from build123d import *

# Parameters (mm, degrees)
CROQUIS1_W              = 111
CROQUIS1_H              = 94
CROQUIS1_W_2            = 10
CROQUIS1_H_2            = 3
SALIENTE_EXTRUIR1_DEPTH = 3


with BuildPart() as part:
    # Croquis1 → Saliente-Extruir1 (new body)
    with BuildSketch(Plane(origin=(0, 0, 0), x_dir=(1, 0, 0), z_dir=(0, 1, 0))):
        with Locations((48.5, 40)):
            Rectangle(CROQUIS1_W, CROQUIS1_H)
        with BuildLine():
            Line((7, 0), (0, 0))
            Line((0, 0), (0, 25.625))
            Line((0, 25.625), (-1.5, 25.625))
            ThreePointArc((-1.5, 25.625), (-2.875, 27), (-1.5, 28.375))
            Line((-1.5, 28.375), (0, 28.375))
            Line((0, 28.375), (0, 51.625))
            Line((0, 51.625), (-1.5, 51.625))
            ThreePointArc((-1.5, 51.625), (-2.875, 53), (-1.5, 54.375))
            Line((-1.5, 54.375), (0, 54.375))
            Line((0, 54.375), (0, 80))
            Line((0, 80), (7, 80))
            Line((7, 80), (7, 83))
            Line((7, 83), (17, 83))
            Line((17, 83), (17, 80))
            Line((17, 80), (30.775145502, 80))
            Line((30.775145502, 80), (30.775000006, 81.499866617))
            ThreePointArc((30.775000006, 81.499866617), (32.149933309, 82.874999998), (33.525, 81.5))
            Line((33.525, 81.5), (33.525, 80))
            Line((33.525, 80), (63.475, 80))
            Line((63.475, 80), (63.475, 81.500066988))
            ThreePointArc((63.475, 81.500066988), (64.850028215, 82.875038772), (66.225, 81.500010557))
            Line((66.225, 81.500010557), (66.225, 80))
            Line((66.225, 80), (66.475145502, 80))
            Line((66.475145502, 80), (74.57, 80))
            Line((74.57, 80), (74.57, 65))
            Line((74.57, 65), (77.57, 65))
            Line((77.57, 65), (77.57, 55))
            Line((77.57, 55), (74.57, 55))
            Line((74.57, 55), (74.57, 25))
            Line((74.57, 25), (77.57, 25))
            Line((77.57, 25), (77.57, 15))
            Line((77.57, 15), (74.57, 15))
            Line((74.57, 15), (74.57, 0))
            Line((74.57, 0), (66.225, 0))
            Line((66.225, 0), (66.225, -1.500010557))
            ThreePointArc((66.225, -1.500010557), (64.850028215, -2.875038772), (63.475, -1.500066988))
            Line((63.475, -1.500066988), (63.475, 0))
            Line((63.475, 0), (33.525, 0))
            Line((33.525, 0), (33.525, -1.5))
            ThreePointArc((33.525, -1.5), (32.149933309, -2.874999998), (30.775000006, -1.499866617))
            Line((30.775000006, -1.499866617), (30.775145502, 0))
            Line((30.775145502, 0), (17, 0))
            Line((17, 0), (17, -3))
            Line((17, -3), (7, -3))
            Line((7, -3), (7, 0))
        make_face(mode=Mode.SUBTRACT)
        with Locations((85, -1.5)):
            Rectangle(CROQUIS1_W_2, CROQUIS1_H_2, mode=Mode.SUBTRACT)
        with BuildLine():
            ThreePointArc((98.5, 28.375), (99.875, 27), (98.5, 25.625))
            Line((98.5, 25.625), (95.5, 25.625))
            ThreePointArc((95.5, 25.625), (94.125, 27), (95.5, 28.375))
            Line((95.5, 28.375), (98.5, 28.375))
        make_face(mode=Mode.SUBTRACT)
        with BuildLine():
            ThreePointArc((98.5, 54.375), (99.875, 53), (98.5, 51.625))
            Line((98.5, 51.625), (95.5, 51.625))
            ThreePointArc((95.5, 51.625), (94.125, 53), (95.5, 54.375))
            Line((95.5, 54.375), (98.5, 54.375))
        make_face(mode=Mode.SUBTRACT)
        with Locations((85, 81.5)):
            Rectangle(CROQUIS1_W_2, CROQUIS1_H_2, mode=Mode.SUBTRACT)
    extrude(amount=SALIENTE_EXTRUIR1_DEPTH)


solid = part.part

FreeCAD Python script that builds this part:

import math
import FreeCAD as App
import Part
import Sketcher

V = App.Vector

doc = App.newDocument("Part")
body = doc.addObject("PartDesign::Body", "Body")

sketch1 = body.newObject("Sketcher::SketchObject", "Sketch")
sketch1.AttachmentSupport = (doc.getObject("XZ_Plane"), [""])
sketch1.MapMode = "FlatFace"
sketch1.addGeometry(Part.LineSegment(V(-7, -87, 0), V(-7, 7, 0)), False)
sketch1.addGeometry(Part.LineSegment(V(-7, 7, 0), V(104, 7, 0)), False)
sketch1.addGeometry(Part.LineSegment(V(104, 7, 0), V(104, -87, 0)), False)
sketch1.addGeometry(Part.LineSegment(V(104, -87, 0), V(-7, -87, 0)), False)
sketch1.addGeometry(Part.LineSegment(V(90, 3, 0), V(80, 3, 0)), False)
sketch1.addGeometry(Part.LineSegment(V(80, 3, 0), V(80, 0, 0)), False)
sketch1.addGeometry(Part.LineSegment(V(80, 0, 0), V(90, 0, 0)), False)
sketch1.addGeometry(Part.LineSegment(V(90, 0, 0), V(90, 3, 0)), False)
sketch1.addGeometry(Part.LineSegment(V(95.5, -28.4, 0), V(98.5, -28.4, 0)), False)
sketch1.addGeometry(Part.ArcOfCircle(Part.Circle(V(98.5, -27, 0), V(0, 0, 1), 1.4), math.radians(-90), math.radians(90)), False)
sketch1.addGeometry(Part.LineSegment(V(98.5, -25.6, 0), V(95.5, -25.6, 0)), False)
sketch1.addGeometry(Part.ArcOfCircle(Part.Circle(V(95.5, -27, 0), V(0, 0, 1), 1.4), math.radians(90), math.radians(270)), False)
sketch1.addGeometry(Part.LineSegment(V(7, 3, 0), V(7, 0, 0)), False)
sketch1.addGeometry(Part.LineSegment(V(7, 0, 0), V(0, 0, 0)), False)
sketch1.addGeometry(Part.LineSegment(V(0, 0, 0), V(0, -25.6, 0)), False)
sketch1.addGeometry(Part.LineSegment(V(0, -25.6, 0), V(-1.5, -25.6, 0)), False)
sketch1.addGeometry(Part.ArcOfCircle(Part.Circle(V(-1.5, -27, 0), V(0, 0, 1), 1.4), math.radians(90), math.radians(270)), False)
sketch1.addGeometry(Part.LineSegment(V(-1.5, -28.4, 0), V(0, -28.4, 0)), False)
sketch1.addGeometry(Part.LineSegment(V(0, -28.4, 0), V(0, -51.6, 0)), False)
sketch1.addGeometry(Part.LineSegment(V(0, -51.6, 0), V(-1.5, -51.6, 0)), False)
sketch1.addGeometry(Part.ArcOfCircle(Part.Circle(V(-1.5, -53, 0), V(0, 0, 1), 1.4), math.radians(90), math.radians(270)), False)
sketch1.addGeometry(Part.LineSegment(V(-1.5, -54.4, 0), V(0, -54.4, 0)), False)
sketch1.addGeometry(Part.LineSegment(V(0, -54.4, 0), V(0, -80, 0)), False)
sketch1.addGeometry(Part.LineSegment(V(0, -80, 0), V(7, -80, 0)), False)
sketch1.addGeometry(Part.LineSegment(V(7, -80, 0), V(7, -83, 0)), False)
sketch1.addGeometry(Part.LineSegment(V(7, -83, 0), V(17, -83, 0)), False)
sketch1.addGeometry(Part.LineSegment(V(17, -83, 0), V(17, -80, 0)), False)
sketch1.addGeometry(Part.LineSegment(V(17, -80, 0), V(30.8, -80, 0)), False)
sketch1.addGeometry(Part.LineSegment(V(30.8, -80, 0), V(30.8, -81.5, 0)), False)
sketch1.addGeometry(Part.ArcOfCircle(Part.Circle(V(32.1, -81.5, 0), V(0, 0, 1), 1.4), math.radians(180), math.radians(360)), False)
sketch1.addGeometry(Part.LineSegment(V(33.5, -81.5, 0), V(33.5, -80, 0)), False)
sketch1.addGeometry(Part.LineSegment(V(33.5, -80, 0), V(63.5, -80, 0)), False)
sketch1.addGeometry(Part.LineSegment(V(63.5, -80, 0), V(63.5, -81.5, 0)), False)
sketch1.addGeometry(Part.ArcOfCircle(Part.Circle(V(64.8, -81.5, 0), V(0, 0, 1), 1.4), math.radians(-180), math.radians(0)), False)
sketch1.addGeometry(Part.LineSegment(V(66.2, -81.5, 0), V(66.2, -80, 0)), False)
sketch1.addGeometry(Part.LineSegment(V(66.2, -80, 0), V(74.6, -80, 0)), False)
sketch1.addGeometry(Part.LineSegment(V(74.6, -80, 0), V(74.6, -65, 0)), False)
sketch1.addGeometry(Part.LineSegment(V(74.6, -65, 0), V(77.6, -65, 0)), False)
sketch1.addGeometry(Part.LineSegment(V(77.6, -65, 0), V(77.6, -55, 0)), False)
sketch1.addGeometry(Part.LineSegment(V(77.6, -55, 0), V(74.6, -55, 0)), False)
sketch1.addGeometry(Part.LineSegment(V(74.6, -55, 0), V(74.6, -25, 0)), False)
sketch1.addGeometry(Part.LineSegment(V(74.6, -25, 0), V(77.6, -25, 0)), False)
sketch1.addGeometry(Part.LineSegment(V(77.6, -25, 0), V(77.6, -15, 0)), False)
sketch1.addGeometry(Part.LineSegment(V(77.6, -15, 0), V(74.6, -15, 0)), False)
sketch1.addGeometry(Part.LineSegment(V(74.6, -15, 0), V(74.6, 0, 0)), False)
sketch1.addGeometry(Part.LineSegment(V(74.6, 0, 0), V(66.2, 0, 0)), False)
sketch1.addGeometry(Part.LineSegment(V(66.2, 0, 0), V(66.2, 1.5, 0)), False)
sketch1.addGeometry(Part.ArcOfCircle(Part.Circle(V(64.8, 1.5, 0), V(0, 0, 1), 1.4), math.radians(0), math.radians(180)), False)
sketch1.addGeometry(Part.LineSegment(V(63.5, 1.5, 0), V(63.5, 0, 0)), False)
sketch1.addGeometry(Part.LineSegment(V(63.5, 0, 0), V(33.5, 0, 0)), False)
sketch1.addGeometry(Part.LineSegment(V(33.5, 0, 0), V(33.5, 1.5, 0)), False)
sketch1.addGeometry(Part.ArcOfCircle(Part.Circle(V(32.1, 1.5, 0), V(0, 0, 1), 1.4), math.radians(0), math.radians(180)), False)
sketch1.addGeometry(Part.LineSegment(V(30.8, 1.5, 0), V(30.8, 0, 0)), False)
sketch1.addGeometry(Part.LineSegment(V(30.8, 0, 0), V(17, 0, 0)), False)
sketch1.addGeometry(Part.LineSegment(V(17, 0, 0), V(17, 3, 0)), False)
sketch1.addGeometry(Part.LineSegment(V(17, 3, 0), V(7, 3, 0)), False)
sketch1.addGeometry(Part.LineSegment(V(95.5, -54.4, 0), V(98.5, -54.4, 0)), False)
sketch1.addGeometry(Part.ArcOfCircle(Part.Circle(V(98.5, -53, 0), V(0, 0, 1), 1.4), math.radians(-90), math.radians(90)), False)
sketch1.addGeometry(Part.LineSegment(V(98.5, -51.6, 0), V(95.5, -51.6, 0)), False)
sketch1.addGeometry(Part.ArcOfCircle(Part.Circle(V(95.5, -53, 0), V(0, 0, 1), 1.4), math.radians(90), math.radians(270)), False)
sketch1.addGeometry(Part.LineSegment(V(90, -80, 0), V(80, -80, 0)), False)
sketch1.addGeometry(Part.LineSegment(V(80, -80, 0), V(80, -83, 0)), False)
sketch1.addGeometry(Part.LineSegment(V(80, -83, 0), V(90, -83, 0)), False)
sketch1.addGeometry(Part.LineSegment(V(90, -83, 0), V(90, -80, 0)), False)
sketch1.addConstraint(Sketcher.Constraint("Coincident", 0, 2, 1, 1))
sketch1.addConstraint(Sketcher.Constraint("Coincident", 1, 2, 2, 1))
sketch1.addConstraint(Sketcher.Constraint("Coincident", 2, 2, 3, 1))
sketch1.addConstraint(Sketcher.Constraint("Coincident", 3, 2, 0, 1))
sketch1.addConstraint(Sketcher.Constraint("Coincident", 4, 2, 5, 1))
sketch1.addConstraint(Sketcher.Constraint("Coincident", 5, 2, 6, 1))
sketch1.addConstraint(Sketcher.Constraint("Coincident", 6, 2, 7, 1))
sketch1.addConstraint(Sketcher.Constraint("Coincident", 7, 2, 4, 1))
sketch1.addConstraint(Sketcher.Constraint("Tangent", 8, 2, 9, 1))
sketch1.addConstraint(Sketcher.Constraint("Tangent", 9, 2, 10, 1))
sketch1.addConstraint(Sketcher.Constraint("Tangent", 10, 2, 11, 1))
sketch1.addConstraint(Sketcher.Constraint("Tangent", 11, 2, 8, 1))
sketch1.addConstraint(Sketcher.Constraint("Coincident", 12, 2, 13, 1))
sketch1.addConstraint(Sketcher.Constraint("Coincident", 13, 2, 14, 1))
sketch1.addConstraint(Sketcher.Constraint("Coincident", 14, 2, 15, 1))
sketch1.addConstraint(Sketcher.Constraint("Tangent", 15, 2, 16, 1))
sketch1.addConstraint(Sketcher.Constraint("Tangent", 16, 2, 17, 1))
sketch1.addConstraint(Sketcher.Constraint("Coincident", 17, 2, 18, 1))
sketch1.addConstraint(Sketcher.Constraint("Coincident", 18, 2, 19, 1))
sketch1.addConstraint(Sketcher.Constraint("Tangent", 19, 2, 20, 1))
sketch1.addConstraint(Sketcher.Constraint("Tangent", 20, 2, 21, 1))
sketch1.addConstraint(Sketcher.Constraint("Coincident", 21, 2, 22, 1))
sketch1.addConstraint(Sketcher.Constraint("Coincident", 22, 2, 23, 1))
sketch1.addConstraint(Sketcher.Constraint("Coincident", 23, 2, 24, 1))
sketch1.addConstraint(Sketcher.Constraint("Coincident", 24, 2, 25, 1))
sketch1.addConstraint(Sketcher.Constraint("Coincident", 25, 2, 26, 1))
sketch1.addConstraint(Sketcher.Constraint("Coincident", 26, 2, 27, 1))
sketch1.addConstraint(Sketcher.Constraint("Coincident", 27, 2, 28, 1))
sketch1.addConstraint(Sketcher.Constraint("Tangent", 28, 2, 29, 1))
sketch1.addConstraint(Sketcher.Constraint("Tangent", 29, 2, 30, 1))
sketch1.addConstraint(Sketcher.Constraint("Coincident", 30, 2, 31, 1))
sketch1.addConstraint(Sketcher.Constraint("Coincident", 31, 2, 32, 1))
sketch1.addConstraint(Sketcher.Constraint("Coincident", 32, 2, 33, 1))
sketch1.addConstraint(Sketcher.Constraint("Coincident", 33, 2, 34, 1))
sketch1.addConstraint(Sketcher.Constraint("Coincident", 34, 2, 35, 1))
sketch1.addConstraint(Sketcher.Constraint("Coincident", 35, 2, 36, 1))
sketch1.addConstraint(Sketcher.Constraint("Coincident", 36, 2, 37, 1))
sketch1.addConstraint(Sketcher.Constraint("Coincident", 37, 2, 38, 1))
sketch1.addConstraint(Sketcher.Constraint("Coincident", 38, 2, 39, 1))
sketch1.addConstraint(Sketcher.Constraint("Coincident", 39, 2, 40, 1))
sketch1.addConstraint(Sketcher.Constraint("Coincident", 40, 2, 41, 1))
sketch1.addConstraint(Sketcher.Constraint("Coincident", 41, 2, 42, 1))
sketch1.addConstraint(Sketcher.Constraint("Coincident", 42, 2, 43, 1))
sketch1.addConstraint(Sketcher.Constraint("Coincident", 43, 2, 44, 1))
sketch1.addConstraint(Sketcher.Constraint("Coincident", 44, 2, 45, 1))
sketch1.addConstraint(Sketcher.Constraint("Coincident", 45, 2, 46, 1))
sketch1.addConstraint(Sketcher.Constraint("Coincident", 46, 2, 47, 1))
sketch1.addConstraint(Sketcher.Constraint("Coincident", 47, 2, 48, 1))
sketch1.addConstraint(Sketcher.Constraint("Coincident", 48, 2, 49, 1))
sketch1.addConstraint(Sketcher.Constraint("Coincident", 49, 2, 50, 1))
sketch1.addConstraint(Sketcher.Constraint("Tangent", 50, 2, 51, 1))
sketch1.addConstraint(Sketcher.Constraint("Tangent", 51, 2, 52, 1))
sketch1.addConstraint(Sketcher.Constraint("Coincident", 52, 2, 53, 1))
sketch1.addConstraint(Sketcher.Constraint("Coincident", 53, 2, 54, 1))
sketch1.addConstraint(Sketcher.Constraint("Coincident", 54, 2, 55, 1))
sketch1.addConstraint(Sketcher.Constraint("Coincident", 55, 2, 12, 1))
sketch1.addConstraint(Sketcher.Constraint("Tangent", 56, 2, 57, 1))
sketch1.addConstraint(Sketcher.Constraint("Tangent", 57, 2, 58, 1))
sketch1.addConstraint(Sketcher.Constraint("Tangent", 58, 2, 59, 1))
sketch1.addConstraint(Sketcher.Constraint("Tangent", 59, 2, 56, 1))
sketch1.addConstraint(Sketcher.Constraint("Coincident", 60, 2, 61, 1))
sketch1.addConstraint(Sketcher.Constraint("Coincident", 61, 2, 62, 1))
sketch1.addConstraint(Sketcher.Constraint("Coincident", 62, 2, 63, 1))
sketch1.addConstraint(Sketcher.Constraint("Coincident", 63, 2, 60, 1))
sketch1.addConstraint(Sketcher.Constraint("Vertical", 0))
sketch1.addConstraint(Sketcher.Constraint("Horizontal", 1))
sketch1.addConstraint(Sketcher.Constraint("Vertical", 2))
sketch1.addConstraint(Sketcher.Constraint("Horizontal", 3))
sketch1.addConstraint(Sketcher.Constraint("Horizontal", 4))
sketch1.addConstraint(Sketcher.Constraint("Vertical", 5))
sketch1.addConstraint(Sketcher.Constraint("Horizontal", 6))
sketch1.addConstraint(Sketcher.Constraint("Vertical", 7))
sketch1.addConstraint(Sketcher.Constraint("Horizontal", 8))
sketch1.addConstraint(Sketcher.Constraint("Horizontal", 10))
sketch1.addConstraint(Sketcher.Constraint("Vertical", 12))
sketch1.addConstraint(Sketcher.Constraint("Horizontal", 13))
sketch1.addConstraint(Sketcher.Constraint("Vertical", 14))
sketch1.addConstraint(Sketcher.Constraint("Horizontal", 15))
sketch1.addConstraint(Sketcher.Constraint("Horizontal", 17))
sketch1.addConstraint(Sketcher.Constraint("Vertical", 18))
sketch1.addConstraint(Sketcher.Constraint("Horizontal", 19))
sketch1.addConstraint(Sketcher.Constraint("Horizontal", 21))
sketch1.addConstraint(Sketcher.Constraint("Vertical", 22))
sketch1.addConstraint(Sketcher.Constraint("Horizontal", 23))
sketch1.addConstraint(Sketcher.Constraint("Vertical", 24))
sketch1.addConstraint(Sketcher.Constraint("Horizontal", 25))
sketch1.addConstraint(Sketcher.Constraint("Vertical", 26))
sketch1.addConstraint(Sketcher.Constraint("Horizontal", 27))
sketch1.addConstraint(Sketcher.Constraint("Vertical", 30))
sketch1.addConstraint(Sketcher.Constraint("Horizontal", 31))
sketch1.addConstraint(Sketcher.Constraint("Vertical", 32))
sketch1.addConstraint(Sketcher.Constraint("Vertical", 34))
sketch1.addConstraint(Sketcher.Constraint("Horizontal", 35))
sketch1.addConstraint(Sketcher.Constraint("Vertical", 36))
sketch1.addConstraint(Sketcher.Constraint("Horizontal", 37))
sketch1.addConstraint(Sketcher.Constraint("Vertical", 38))
sketch1.addConstraint(Sketcher.Constraint("Horizontal", 39))
sketch1.addConstraint(Sketcher.Constraint("Vertical", 40))
sketch1.addConstraint(Sketcher.Constraint("Horizontal", 41))
sketch1.addConstraint(Sketcher.Constraint("Vertical", 42))
sketch1.addConstraint(Sketcher.Constraint("Horizontal", 43))
sketch1.addConstraint(Sketcher.Constraint("Vertical", 44))
sketch1.addConstraint(Sketcher.Constraint("Horizontal", 45))
sketch1.addConstraint(Sketcher.Constraint("Vertical", 46))
sketch1.addConstraint(Sketcher.Constraint("Vertical", 48))
sketch1.addConstraint(Sketcher.Constraint("Horizontal", 49))
sketch1.addConstraint(Sketcher.Constraint("Vertical", 50))
sketch1.addConstraint(Sketcher.Constraint("Horizontal", 53))
sketch1.addConstraint(Sketcher.Constraint("Vertical", 54))
sketch1.addConstraint(Sketcher.Constraint("Horizontal", 55))
sketch1.addConstraint(Sketcher.Constraint("Horizontal", 56))
sketch1.addConstraint(Sketcher.Constraint("Horizontal", 58))
sketch1.addConstraint(Sketcher.Constraint("Horizontal", 60))
sketch1.addConstraint(Sketcher.Constraint("Vertical", 61))
sketch1.addConstraint(Sketcher.Constraint("Horizontal", 62))
sketch1.addConstraint(Sketcher.Constraint("Vertical", 63))
sketch1.addConstraint(Sketcher.Constraint("Coincident", 13, 2, -1, 1))
sketch1.addConstraint(Sketcher.Constraint("Equal", 11, 16))
sketch1.addConstraint(Sketcher.Constraint("Equal", 16, 20))
sketch1.addConstraint(Sketcher.Constraint("Equal", 20, 29))
sketch1.addConstraint(Sketcher.Constraint("Equal", 29, 33))
sketch1.addConstraint(Sketcher.Constraint("Equal", 33, 47))
sketch1.addConstraint(Sketcher.Constraint("Equal", 47, 51))
sketch1.addConstraint(Sketcher.Constraint("Equal", 51, 57))
sketch1.addConstraint(Sketcher.Constraint("PointOnObject", 5, 2, -1))
sketch1.addConstraint(Sketcher.Constraint("PointOnObject", 17, 2, -2))
sketch1.addConstraint(Sketcher.Constraint("PointOnObject", 21, 2, -2))
sketch1.addConstraint(Sketcher.Constraint("PointOnObject", 44, 2, -1))
sketch1.addConstraint(Sketcher.Constraint("PointOnObject", 48, 2, -1))
sketch1.addConstraint(Sketcher.Constraint("PointOnObject", 52, 2, -1))
sketch1.addConstraint(Sketcher.Constraint("Horizontal", 11, 3, 16, 3))
sketch1.addConstraint(Sketcher.Constraint("Horizontal", 20, 3, 57, 3))
sketch1.addConstraint(Sketcher.Constraint("Horizontal", 23, 2, 26, 2))
sketch1.addConstraint(Sketcher.Constraint("Horizontal", 27, 2, 30, 2))
sketch1.addConstraint(Sketcher.Constraint("Horizontal", 31, 2, 34, 2))
sketch1.addConstraint(Sketcher.Constraint("Horizontal", 7, 2, 54, 2))
sketch1.addConstraint(Sketcher.Constraint("Horizontal", 35, 2, 60, 2))
sketch1.addConstraint(Sketcher.Constraint("Horizontal", 25, 2, 61, 2))
sketch1.addConstraint(Sketcher.Constraint("Vertical", 16, 3, 20, 3))
sketch1.addConstraint(Sketcher.Constraint("Vertical", 33, 3, 47, 3))
sketch1.addConstraint(Sketcher.Constraint("Vertical", 29, 3, 51, 3))
sketch1.addConstraint(Sketcher.Constraint("Vertical", 9, 3, 57, 3))
sketch1.addConstraint(Sketcher.Constraint("Vertical", 11, 3, 59, 3))
sketch1.addConstraint(Sketcher.Constraint("Vertical", 12, 2, 23, 2))
sketch1.addConstraint(Sketcher.Constraint("Vertical", 36, 2, 39, 2))
sketch1.addConstraint(Sketcher.Constraint("Vertical", 38, 2, 41, 2))
sketch1.addConstraint(Sketcher.Constraint("Vertical", 40, 2, 43, 2))
sketch1.addConstraint(Sketcher.Constraint("Vertical", 27, 2, 52, 2))
sketch1.addConstraint(Sketcher.Constraint("Vertical", 26, 2, 53, 2))
sketch1.addConstraint(Sketcher.Constraint("Vertical", 5, 2, 60, 2))
sketch1.addConstraint(Sketcher.Constraint("Vertical", 7, 2, 62, 2))
sketch1.addConstraint(Sketcher.Constraint("Equal", 6, 25))
sketch1.addConstraint(Sketcher.Constraint("Equal", 10, 37))
sketch1.addConstraint(Sketcher.Constraint("Equal", 58, 5))
sketch1.addConstraint(Sketcher.Constraint("Equal", 14, 22))
sketch1.addConstraint(Sketcher.Constraint("Equal", 12, 24))
sketch1.addConstraint(Sketcher.Constraint("Equal", 21, 30))
sketch1.addConstraint(Sketcher.Constraint("Equal", 62, 38))
sketch1.addConstraint(Sketcher.Constraint("Equal", 38, 42))
sketch1.addConstraint(Sketcher.Constraint("Equal", 36, 44))
sketch1.addConstraint(Sketcher.Constraint("Equal", 34, 46))
sketch1.addConstraint(Sketcher.Constraint("Equal", 32, 48))
sketch1.addConstraint(Sketcher.Constraint("Equal", 30, 50))
sketch1.addConstraint(Sketcher.Constraint("DistanceX", 1, 1, 1, 2, 111.0))
sketch1.addConstraint(Sketcher.Constraint("DistanceX", 4, 2, 4, 1, 10.0))
sketch1.addConstraint(Sketcher.Constraint("DistanceX", 8, 1, 8, 2, 3.0))
sketch1.addConstraint(Sketcher.Constraint("DistanceX", 13, 2, 13, 1, 7.0))
sketch1.addConstraint(Sketcher.Constraint("DistanceY", 0, 1, 0, 2, 94.0))
sketch1.addConstraint(Sketcher.Constraint("DistanceY", 36, 1, 36, 2, 15.0))
sketch1.addConstraint(Sketcher.Constraint("DistanceY", 40, 1, 40, 2, 30.0))
sketch1.addConstraint(Sketcher.Constraint("DistanceX", 15, 2, 15, 1, 1.5))
sketch1.addConstraint(Sketcher.Constraint("DistanceY", 9, 3, -1, 1, 27.0))
sketch1.addConstraint(Sketcher.Constraint("DistanceX", 0, 2, -1, 1, 7.0))
sketch1.addConstraint(Sketcher.Constraint("DistanceY", -1, 1, 0, 2, 7.0))
sketch1.addConstraint(Sketcher.Constraint("DistanceX", -1, 1, 4, 2, 80.0))
sketch1.addConstraint(Sketcher.Constraint("Radius", 9, 1.375))
sketch1.addConstraint(Sketcher.Constraint("DistanceX", 31, 1, 31, 2, 29.95))
sketch1.addConstraint(Sketcher.Constraint("DistanceX", -1, 1, 9, 3, 98.5))
sketch1.addConstraint(Sketcher.Constraint("DistanceX", 35, 1, 35, 2, 8.345))
sketch1.addConstraint(Sketcher.Constraint("DistanceX", -1, 1, 29, 3, 32.15))
sketch1.addConstraint(Sketcher.Constraint("DistanceY", 34, 1, 34, 2, 1.500011))
sketch1.addConstraint(Sketcher.Constraint("DistanceX", 27, 1, 27, 2, 13.775146))
sketch1.addConstraint(Sketcher.Constraint("DistanceY", 32, 2, 32, 1, 1.500067))
sketch1.addConstraint(Sketcher.Constraint("DistanceY", 33, 3, -1, 1, 81.500039))
sketch1.addConstraint(Sketcher.Constraint("DistanceY", -1, 1, 47, 3, 1.500039))
pad1 = body.newObject("PartDesign::Pad", "Pad")
pad1.Profile = sketch1
pad1.Length = 3
pad1.Reversed = True

doc.recompute()
